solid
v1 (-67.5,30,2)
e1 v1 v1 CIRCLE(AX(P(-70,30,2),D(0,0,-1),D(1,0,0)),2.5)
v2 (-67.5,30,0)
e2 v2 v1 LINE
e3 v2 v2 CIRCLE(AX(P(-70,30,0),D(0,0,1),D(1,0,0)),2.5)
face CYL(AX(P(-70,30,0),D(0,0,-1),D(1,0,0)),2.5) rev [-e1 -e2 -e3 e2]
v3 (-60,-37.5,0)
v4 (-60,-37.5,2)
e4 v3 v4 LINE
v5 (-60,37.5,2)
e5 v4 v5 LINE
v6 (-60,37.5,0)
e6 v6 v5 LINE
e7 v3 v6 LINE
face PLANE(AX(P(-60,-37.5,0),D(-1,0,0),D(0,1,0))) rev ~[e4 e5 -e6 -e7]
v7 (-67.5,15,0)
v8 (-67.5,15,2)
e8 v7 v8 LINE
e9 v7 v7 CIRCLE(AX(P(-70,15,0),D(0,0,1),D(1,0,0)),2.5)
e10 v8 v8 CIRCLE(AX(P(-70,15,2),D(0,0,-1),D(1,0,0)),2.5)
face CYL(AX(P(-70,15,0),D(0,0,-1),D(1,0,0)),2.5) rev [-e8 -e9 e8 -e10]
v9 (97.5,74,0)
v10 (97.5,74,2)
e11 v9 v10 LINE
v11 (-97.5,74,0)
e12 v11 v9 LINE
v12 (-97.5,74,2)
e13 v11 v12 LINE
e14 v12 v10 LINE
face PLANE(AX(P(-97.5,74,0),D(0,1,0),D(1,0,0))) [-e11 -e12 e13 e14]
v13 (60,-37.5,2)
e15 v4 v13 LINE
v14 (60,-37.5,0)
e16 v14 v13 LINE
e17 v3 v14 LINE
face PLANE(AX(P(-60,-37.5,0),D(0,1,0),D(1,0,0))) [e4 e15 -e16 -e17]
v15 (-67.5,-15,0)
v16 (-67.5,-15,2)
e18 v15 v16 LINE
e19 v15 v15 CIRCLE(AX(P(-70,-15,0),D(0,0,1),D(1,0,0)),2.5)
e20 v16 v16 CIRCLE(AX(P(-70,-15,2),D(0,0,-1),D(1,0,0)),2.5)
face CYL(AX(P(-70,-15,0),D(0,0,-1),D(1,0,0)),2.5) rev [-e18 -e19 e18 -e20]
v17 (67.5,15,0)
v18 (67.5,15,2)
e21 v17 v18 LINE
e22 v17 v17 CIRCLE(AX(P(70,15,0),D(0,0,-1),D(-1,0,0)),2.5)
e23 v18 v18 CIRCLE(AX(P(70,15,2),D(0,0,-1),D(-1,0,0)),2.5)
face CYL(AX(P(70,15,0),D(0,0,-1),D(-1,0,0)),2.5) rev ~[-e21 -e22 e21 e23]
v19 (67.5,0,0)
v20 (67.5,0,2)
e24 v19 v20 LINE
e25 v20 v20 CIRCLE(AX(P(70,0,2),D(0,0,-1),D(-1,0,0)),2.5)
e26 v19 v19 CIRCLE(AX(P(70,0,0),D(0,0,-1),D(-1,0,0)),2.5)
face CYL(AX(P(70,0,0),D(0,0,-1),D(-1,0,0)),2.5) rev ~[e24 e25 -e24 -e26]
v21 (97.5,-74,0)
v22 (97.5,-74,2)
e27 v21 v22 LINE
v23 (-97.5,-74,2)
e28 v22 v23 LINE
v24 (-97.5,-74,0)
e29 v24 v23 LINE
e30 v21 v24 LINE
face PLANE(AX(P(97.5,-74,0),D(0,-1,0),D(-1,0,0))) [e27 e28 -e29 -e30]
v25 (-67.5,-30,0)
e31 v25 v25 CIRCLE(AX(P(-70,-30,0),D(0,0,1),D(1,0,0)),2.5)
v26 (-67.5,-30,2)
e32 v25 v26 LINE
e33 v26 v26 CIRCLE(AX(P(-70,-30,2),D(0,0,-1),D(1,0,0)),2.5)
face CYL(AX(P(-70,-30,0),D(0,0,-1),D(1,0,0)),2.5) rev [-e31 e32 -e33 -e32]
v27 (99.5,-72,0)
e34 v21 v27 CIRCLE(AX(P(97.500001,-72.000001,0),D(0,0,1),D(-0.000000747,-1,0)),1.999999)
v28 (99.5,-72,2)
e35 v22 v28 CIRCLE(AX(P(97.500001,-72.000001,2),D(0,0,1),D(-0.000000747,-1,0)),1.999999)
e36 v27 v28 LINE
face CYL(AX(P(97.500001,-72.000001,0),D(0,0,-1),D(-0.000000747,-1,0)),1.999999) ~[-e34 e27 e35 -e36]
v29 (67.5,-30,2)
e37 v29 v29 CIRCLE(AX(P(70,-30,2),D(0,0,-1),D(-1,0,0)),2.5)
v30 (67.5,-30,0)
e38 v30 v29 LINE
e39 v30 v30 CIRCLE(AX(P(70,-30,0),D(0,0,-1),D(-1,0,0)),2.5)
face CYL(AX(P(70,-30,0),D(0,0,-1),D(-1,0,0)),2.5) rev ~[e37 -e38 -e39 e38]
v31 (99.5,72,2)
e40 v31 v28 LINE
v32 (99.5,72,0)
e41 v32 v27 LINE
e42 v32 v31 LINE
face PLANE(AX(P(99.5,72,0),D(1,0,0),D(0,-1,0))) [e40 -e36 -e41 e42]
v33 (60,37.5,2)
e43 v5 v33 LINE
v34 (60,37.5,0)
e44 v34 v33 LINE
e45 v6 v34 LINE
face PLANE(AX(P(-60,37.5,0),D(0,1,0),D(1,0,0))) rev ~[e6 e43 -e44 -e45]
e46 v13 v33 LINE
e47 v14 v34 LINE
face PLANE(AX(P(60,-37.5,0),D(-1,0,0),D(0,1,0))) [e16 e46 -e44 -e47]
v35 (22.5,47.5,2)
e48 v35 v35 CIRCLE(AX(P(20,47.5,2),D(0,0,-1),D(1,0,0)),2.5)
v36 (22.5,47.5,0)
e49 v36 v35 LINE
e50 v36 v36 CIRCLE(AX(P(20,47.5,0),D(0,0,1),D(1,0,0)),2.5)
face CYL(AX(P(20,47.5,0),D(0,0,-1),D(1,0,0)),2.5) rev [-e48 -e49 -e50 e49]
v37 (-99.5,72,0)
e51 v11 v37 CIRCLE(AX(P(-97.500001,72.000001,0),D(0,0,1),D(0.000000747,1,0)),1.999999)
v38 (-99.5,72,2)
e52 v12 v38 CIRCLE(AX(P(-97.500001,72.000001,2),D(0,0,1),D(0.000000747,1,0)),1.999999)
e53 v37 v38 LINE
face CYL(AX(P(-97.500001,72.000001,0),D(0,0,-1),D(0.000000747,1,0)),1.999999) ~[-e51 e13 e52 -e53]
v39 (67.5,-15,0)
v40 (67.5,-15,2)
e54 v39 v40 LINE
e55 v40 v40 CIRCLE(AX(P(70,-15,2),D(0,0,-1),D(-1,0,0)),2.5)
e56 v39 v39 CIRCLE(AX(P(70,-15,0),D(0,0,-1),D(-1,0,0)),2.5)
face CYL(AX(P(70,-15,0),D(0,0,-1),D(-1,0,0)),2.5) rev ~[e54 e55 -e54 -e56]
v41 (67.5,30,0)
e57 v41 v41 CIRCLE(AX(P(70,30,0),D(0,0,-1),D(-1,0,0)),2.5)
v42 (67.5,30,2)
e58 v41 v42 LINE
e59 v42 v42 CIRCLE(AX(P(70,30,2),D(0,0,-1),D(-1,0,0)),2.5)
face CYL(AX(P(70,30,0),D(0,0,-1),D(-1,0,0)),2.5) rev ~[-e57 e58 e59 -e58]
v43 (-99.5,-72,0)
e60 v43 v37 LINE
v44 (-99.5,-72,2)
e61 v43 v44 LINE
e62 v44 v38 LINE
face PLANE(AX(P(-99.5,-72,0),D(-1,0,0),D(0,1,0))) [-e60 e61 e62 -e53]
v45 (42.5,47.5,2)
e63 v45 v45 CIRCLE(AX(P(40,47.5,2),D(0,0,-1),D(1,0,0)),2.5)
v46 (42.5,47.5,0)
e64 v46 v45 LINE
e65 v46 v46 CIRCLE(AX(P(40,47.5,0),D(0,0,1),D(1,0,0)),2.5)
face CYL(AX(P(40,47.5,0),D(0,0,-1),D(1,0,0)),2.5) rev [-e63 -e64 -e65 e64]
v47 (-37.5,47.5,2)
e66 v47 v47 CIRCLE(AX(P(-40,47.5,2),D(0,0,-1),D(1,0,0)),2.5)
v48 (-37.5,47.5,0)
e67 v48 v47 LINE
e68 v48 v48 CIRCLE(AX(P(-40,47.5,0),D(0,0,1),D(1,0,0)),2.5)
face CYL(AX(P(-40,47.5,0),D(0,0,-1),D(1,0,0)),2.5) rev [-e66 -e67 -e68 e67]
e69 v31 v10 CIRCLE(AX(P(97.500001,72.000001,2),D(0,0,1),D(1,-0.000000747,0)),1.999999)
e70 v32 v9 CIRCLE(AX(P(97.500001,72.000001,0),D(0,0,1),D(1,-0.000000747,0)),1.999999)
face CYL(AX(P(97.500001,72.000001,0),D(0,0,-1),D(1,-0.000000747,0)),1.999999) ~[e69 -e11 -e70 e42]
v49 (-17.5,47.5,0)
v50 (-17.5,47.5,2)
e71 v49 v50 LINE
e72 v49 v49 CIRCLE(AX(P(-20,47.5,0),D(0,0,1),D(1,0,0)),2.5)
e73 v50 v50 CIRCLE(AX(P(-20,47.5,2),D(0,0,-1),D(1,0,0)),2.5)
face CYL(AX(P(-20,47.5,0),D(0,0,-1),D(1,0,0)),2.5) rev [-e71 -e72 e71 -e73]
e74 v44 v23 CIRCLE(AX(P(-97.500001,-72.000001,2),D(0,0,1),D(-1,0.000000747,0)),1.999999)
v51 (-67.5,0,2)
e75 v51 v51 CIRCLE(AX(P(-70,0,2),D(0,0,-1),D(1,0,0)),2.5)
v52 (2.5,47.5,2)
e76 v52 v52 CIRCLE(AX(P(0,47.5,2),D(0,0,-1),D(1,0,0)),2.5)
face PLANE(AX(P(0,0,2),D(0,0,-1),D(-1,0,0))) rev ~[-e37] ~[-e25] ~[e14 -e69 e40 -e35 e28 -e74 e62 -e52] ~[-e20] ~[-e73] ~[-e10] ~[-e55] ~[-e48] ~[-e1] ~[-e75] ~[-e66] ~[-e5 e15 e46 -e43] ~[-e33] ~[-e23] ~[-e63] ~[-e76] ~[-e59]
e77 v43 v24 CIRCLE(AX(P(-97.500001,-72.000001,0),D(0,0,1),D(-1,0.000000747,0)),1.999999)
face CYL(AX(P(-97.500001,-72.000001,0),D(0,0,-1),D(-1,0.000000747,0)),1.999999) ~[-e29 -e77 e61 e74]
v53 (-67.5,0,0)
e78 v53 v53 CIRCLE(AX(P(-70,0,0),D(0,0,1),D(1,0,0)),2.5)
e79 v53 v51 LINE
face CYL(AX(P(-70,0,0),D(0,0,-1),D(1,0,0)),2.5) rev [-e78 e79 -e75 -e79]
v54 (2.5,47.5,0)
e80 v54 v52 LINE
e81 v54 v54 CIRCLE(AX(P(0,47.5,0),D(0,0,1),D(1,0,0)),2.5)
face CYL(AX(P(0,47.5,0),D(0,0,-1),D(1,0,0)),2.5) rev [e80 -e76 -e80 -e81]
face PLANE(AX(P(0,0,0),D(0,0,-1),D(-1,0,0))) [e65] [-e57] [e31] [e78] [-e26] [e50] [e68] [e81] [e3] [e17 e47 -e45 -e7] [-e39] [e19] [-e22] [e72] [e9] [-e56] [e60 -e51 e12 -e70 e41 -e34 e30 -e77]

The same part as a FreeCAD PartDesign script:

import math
import FreeCAD as App
import Part
import Sketcher
Q = App.Units.Quantity

doc = App.newDocument("Part")
body = doc.addObject("PartDesign::Body", "Body")

# Sketch on XY plane
sketch1 = doc.addObject("Sketcher::SketchObject", "Sketch")
body.addObject(sketch1)
sketch1.AttachmentSupport = (doc.XY_Plane, [""])
sketch1.MapMode = "FlatFace"
sketch1.addGeometry([
    Part.LineSegment(App.Vector(97.5, 74, 0), App.Vector(-97.5, 74, 0)),  # 0
    Part.ArcOfCircle(Part.Circle(App.Vector(-97.5, 72, 0), App.Vector(0, 0, 1), 2), math.radians(90), math.radians(180)),  # 1
    Part.LineSegment(App.Vector(-99.5, 72, 0), App.Vector(-99.5, -72, 0)),  # 2
    Part.ArcOfCircle(Part.Circle(App.Vector(-97.5, -72, 0), App.Vector(0, 0, 1), 2), math.radians(180), math.radians(270)),  # 3
    Part.LineSegment(App.Vector(-97.5, -74, 0), App.Vector(97.5, -74, 0)),  # 4
    Part.ArcOfCircle(Part.Circle(App.Vector(97.5, -72, 0), App.Vector(0, 0, 1), 2), math.radians(-90), math.radians(0)),  # 5
    Part.LineSegment(App.Vector(99.5, -72, 0), App.Vector(99.5, 72, 0)),  # 6
    Part.ArcOfCircle(Part.Circle(App.Vector(97.5, 72, 0), App.Vector(0, 0, 1), 2), math.radians(0), math.radians(90)),  # 7
], False)
sketch1.addConstraint([
    Sketcher.Constraint("Tangent", 0, 2, 1, 1),
    Sketcher.Constraint("Tangent", 1, 2, 2, 1),
    Sketcher.Constraint("Tangent", 2, 2, 3, 1),
    Sketcher.Constraint("Tangent", 3, 2, 4, 1),
    Sketcher.Constraint("Tangent", 4, 2, 5, 1),
    Sketcher.Constraint("Tangent", 5, 2, 6, 1),
    Sketcher.Constraint("Tangent", 6, 2, 7, 1),
    Sketcher.Constraint("Tangent", 7, 2, 0, 1),
    Sketcher.Constraint("Horizontal", 0),
    Sketcher.Constraint("Vertical", 2),
    Sketcher.Constraint("Horizontal", 4),
    Sketcher.Constraint("Vertical", 6),
    Sketcher.Constraint("Equal", 1, 3),
    Sketcher.Constraint("Equal", 3, 5),
    Sketcher.Constraint("Equal", 5, 7),
    Sketcher.Constraint("Symmetric", 1, 3, 5, 3, -1, 1),
    Sketcher.Constraint("Radius", 1, Q("1.999999 mm")),
    Sketcher.Constraint("DistanceX", 0, 2, 0, 1, Q("195 mm")),
    Sketcher.Constraint("DistanceY", 2, 2, 2, 1, Q("144 mm")),
])
pad1 = doc.addObject("PartDesign::Pad", "Pad")
body.addObject(pad1)
pad1.Profile = sketch1
pad1.Length = 2

# Sketch on XY plane
sketch2 = doc.addObject("Sketcher::SketchObject", "Sketch001")
body.addObject(sketch2)
sketch2.AttachmentSupport = (doc.XY_Plane, [""])
sketch2.MapMode = "FlatFace"
sketch2.addGeometry([
    Part.LineSegment(App.Vector(-60, 38, 0), App.Vector(-60, -38, 0)),
    Part.LineSegment(App.Vector(-60, -38, 0), App.Vector(60, -38, 0)),
    Part.LineSegment(App.Vector(60, -38, 0), App.Vector(60, 38, 0)),
    Part.LineSegment(App.Vector(60, 38, 0), App.Vector(-60, 38, 0)),
], False)
sketch2.addConstraint([
    Sketcher.Constraint("Coincident", 0, 2, 1, 1),
    Sketcher.Constraint("Coincident", 1, 2, 2, 1),
    Sketcher.Constraint("Coincident", 2, 2, 3, 1),
    Sketcher.Constraint("Coincident", 3, 2, 0, 1),
    Sketcher.Constraint("Vertical", 0),
    Sketcher.Constraint("Horizontal", 1),
    Sketcher.Constraint("Vertical", 2),
    Sketcher.Constraint("Horizontal", 3),
    Sketcher.Constraint("Symmetric", 0, 2, 2, 2, -1, 1),
    Sketcher.Constraint("DistanceX", 1, 1, 1, 2, Q("120 mm")),
    Sketcher.Constraint("DistanceY", 0, 2, 0, 1, Q("75 mm")),
])
pocket1 = doc.addObject("PartDesign::Pocket", "Pocket")
body.addObject(pocket1)
pocket1.Profile = sketch2
pocket1.Length = 7
pocket1.Reversed = True

# Sketch on XY plane
sketch3 = doc.addObject("Sketcher::SketchObject", "Sketch002")
body.addObject(sketch3)
sketch3.AttachmentSupport = (doc.XY_Plane, [""])
sketch3.MapMode = "FlatFace"
sketch3.addGeometry([
    Part.Circle(App.Vector(0, 47.5, 0), App.Vector(0, 0, 1), 2.5),  # 0
    Part.Circle(App.Vector(-40, 47.5, 0), App.Vector(0, 0, 1), 2.5),  # 1
    Part.Circle(App.Vector(-20, 47.5, 0), App.Vector(0, 0, 1), 2.5),  # 2
    Part.Circle(App.Vector(20, 47.5, 0), App.Vector(0, 0, 1), 2.5),  # 3
    Part.Circle(App.Vector(40, 47.5, 0), App.Vector(0, 0, 1), 2.5),  # 4
], False)
sketch3.addConstraint([
    Sketcher.Constraint("Equal", 0, 1),
    Sketcher.Constraint("Equal", 1, 2),
    Sketcher.Constraint("Equal", 2, 3),
    Sketcher.Constraint("Equal", 3, 4),
    Sketcher.Constraint("Symmetric", 2, 3, 3, 3, -2),
    Sketcher.Constraint("Symmetric", 1, 3, 4, 3, -2),
    Sketcher.Constraint("PointOnObject", 0, 3, -2),
    Sketcher.Constraint("Horizontal", 0, 3, 1, 3),
    Sketcher.Constraint("Horizontal", 1, 3, 2, 3),
    Sketcher.Constraint("Diameter", 0, Q("5 mm")),
    Sketcher.Constraint("DistanceX", 1, 3, -1, 1, Q("40 mm")),
    Sketcher.Constraint("DistanceX", 2, 3, -1, 1, Q("20 mm")),
    Sketcher.Constraint("DistanceY", -1, 1, 0, 3, Q("47.5 mm")),
])
pocket2 = doc.addObject("PartDesign::Pocket", "Pocket001")
body.addObject(pocket2)
pocket2.Profile = sketch3
pocket2.Length = 7
pocket2.Reversed = True

# Sketch on XY plane
sketch4 = doc.addObject("Sketcher::SketchObject", "Sketch003")
body.addObject(sketch4)
sketch4.AttachmentSupport = (doc.XY_Plane, [""])
sketch4.MapMode = "FlatFace"
sketch4.addGeometry([
    Part.Circle(App.Vector(-70, 0, 0), App.Vector(0, 0, 1), 2.5),  # 0
    Part.Circle(App.Vector(-70, 15, 0), App.Vector(0, 0, 1), 2.5),  # 1
    Part.Circle(App.Vector(-70, 30, 0), App.Vector(0, 0, 1), 2.5),  # 2
    Part.Circle(App.Vector(-70, -15, 0), App.Vector(0, 0, 1), 2.5),  # 3
    Part.Circle(App.Vector(-70, -30, 0), App.Vector(0, 0, 1), 2.5),  # 4
], False)
sketch4.addConstraint([
    Sketcher.Constraint("Equal", 0, 1),
    Sketcher.Constraint("Equal", 1, 2),
    Sketcher.Constraint("Equal", 2, 3),
    Sketcher.Constraint("Equal", 3, 4),
    Sketcher.Constraint("Symmetric", 1, 3, 3, 3, -1),
    Sketcher.Constraint("Symmetric", 2, 3, 4, 3, -1),
    Sketcher.Constraint("PointOnObject", 0, 3, -1),
    Sketcher.Constraint("Vertical", 0, 3, 1, 3),
    Sketcher.Constraint("Vertical", 1, 3, 2, 3),
    Sketcher.Constraint("Diameter", 0, Q("5 mm")),
    Sketcher.Constraint("DistanceX", 0, 3, -1, 1, Q("70 mm")),
    Sketcher.Constraint("DistanceY", -1, 1, 1, 3, Q("15 mm")),
    Sketcher.Constraint("DistanceY", -1, 1, 2, 3, Q("30 mm")),
])
pocket3 = doc.addObject("PartDesign::Pocket", "Pocket002")
body.addObject(pocket3)
pocket3.Profile = sketch4
pocket3.Length = 7
pocket3.Reversed = True
doc.recompute()

mirrored = doc.addObject("PartDesign::Mirrored", "Mirrored")
body.addObject(mirrored)
mirrored.Originals = [pocket3]
mirrored.MirrorPlane = (doc.YZ_Plane, [""])
body.Tip = mirrored

doc.recompute()
